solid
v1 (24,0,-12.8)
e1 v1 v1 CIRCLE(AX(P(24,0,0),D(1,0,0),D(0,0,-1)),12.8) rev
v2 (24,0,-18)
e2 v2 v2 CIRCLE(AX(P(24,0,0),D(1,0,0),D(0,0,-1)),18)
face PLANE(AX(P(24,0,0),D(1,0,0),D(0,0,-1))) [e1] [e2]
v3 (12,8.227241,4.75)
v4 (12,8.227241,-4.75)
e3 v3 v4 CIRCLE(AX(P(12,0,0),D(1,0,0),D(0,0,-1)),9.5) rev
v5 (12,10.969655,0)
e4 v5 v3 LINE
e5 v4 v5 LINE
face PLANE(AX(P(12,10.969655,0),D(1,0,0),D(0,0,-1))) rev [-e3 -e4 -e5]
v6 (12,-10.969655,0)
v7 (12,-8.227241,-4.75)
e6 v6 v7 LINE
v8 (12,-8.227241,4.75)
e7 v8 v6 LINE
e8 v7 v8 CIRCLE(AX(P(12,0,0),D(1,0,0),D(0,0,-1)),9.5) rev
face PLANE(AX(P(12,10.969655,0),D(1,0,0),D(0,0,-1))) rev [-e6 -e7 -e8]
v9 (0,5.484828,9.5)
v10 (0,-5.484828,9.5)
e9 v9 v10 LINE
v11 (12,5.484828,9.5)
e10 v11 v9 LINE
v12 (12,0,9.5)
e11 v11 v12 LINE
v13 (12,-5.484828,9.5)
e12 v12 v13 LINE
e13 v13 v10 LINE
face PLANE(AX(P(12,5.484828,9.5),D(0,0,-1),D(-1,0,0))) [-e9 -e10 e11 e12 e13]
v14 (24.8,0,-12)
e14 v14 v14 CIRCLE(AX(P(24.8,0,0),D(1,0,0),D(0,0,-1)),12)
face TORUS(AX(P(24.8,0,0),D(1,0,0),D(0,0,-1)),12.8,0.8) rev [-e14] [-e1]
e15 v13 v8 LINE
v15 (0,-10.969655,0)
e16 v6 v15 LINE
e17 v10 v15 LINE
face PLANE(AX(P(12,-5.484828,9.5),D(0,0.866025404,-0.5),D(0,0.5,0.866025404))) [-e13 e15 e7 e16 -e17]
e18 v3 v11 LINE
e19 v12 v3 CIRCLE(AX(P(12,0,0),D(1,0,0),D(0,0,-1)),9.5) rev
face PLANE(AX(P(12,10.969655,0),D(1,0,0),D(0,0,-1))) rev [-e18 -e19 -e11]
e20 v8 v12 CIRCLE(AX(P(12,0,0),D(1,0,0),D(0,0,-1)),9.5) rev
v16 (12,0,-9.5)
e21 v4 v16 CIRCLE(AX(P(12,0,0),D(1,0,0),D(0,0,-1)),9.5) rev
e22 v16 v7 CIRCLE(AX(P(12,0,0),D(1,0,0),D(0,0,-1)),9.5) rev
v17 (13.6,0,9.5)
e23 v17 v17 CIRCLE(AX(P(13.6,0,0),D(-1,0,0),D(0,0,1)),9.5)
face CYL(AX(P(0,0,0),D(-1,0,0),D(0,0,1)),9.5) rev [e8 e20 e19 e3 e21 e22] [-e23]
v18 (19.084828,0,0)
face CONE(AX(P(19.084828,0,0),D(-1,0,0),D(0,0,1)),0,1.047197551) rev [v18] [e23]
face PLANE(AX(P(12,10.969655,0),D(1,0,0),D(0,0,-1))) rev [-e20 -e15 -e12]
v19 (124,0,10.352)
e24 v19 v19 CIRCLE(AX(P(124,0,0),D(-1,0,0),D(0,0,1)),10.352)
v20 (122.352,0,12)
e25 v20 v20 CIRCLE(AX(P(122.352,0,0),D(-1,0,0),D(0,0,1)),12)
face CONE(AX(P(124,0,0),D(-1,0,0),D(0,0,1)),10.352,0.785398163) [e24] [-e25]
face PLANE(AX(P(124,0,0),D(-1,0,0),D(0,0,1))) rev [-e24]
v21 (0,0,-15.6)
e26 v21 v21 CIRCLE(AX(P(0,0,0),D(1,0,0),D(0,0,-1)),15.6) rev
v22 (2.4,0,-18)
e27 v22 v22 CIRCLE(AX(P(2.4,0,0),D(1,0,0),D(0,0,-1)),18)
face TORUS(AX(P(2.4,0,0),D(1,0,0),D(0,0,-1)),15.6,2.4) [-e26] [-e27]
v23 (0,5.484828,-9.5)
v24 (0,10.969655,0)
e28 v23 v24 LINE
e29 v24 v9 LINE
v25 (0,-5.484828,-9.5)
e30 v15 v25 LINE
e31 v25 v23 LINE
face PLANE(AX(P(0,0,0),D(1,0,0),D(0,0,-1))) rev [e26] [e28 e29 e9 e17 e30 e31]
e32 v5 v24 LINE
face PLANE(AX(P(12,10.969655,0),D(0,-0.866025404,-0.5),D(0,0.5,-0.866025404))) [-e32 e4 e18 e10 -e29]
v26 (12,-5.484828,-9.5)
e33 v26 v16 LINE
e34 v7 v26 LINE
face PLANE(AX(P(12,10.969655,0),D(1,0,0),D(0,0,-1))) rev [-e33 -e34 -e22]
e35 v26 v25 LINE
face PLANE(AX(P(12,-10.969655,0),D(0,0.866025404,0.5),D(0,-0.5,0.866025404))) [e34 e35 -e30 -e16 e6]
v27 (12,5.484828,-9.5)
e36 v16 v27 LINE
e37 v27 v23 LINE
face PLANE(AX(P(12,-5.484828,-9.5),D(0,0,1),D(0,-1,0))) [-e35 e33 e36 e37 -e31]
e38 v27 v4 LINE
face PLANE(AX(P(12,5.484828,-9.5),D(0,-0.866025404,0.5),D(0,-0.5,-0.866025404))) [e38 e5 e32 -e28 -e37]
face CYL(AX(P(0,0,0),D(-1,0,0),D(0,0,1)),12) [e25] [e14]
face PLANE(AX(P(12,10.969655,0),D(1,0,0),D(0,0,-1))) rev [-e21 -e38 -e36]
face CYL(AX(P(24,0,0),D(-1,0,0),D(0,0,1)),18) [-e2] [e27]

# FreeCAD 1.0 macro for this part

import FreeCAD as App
import Part
import Sketcher
from FreeCAD import Vector
Q = App.Units.Quantity


def edges_at(feature, points):
    """Names of the edges that pass closest to the given points."""
    edges = feature.Shape.Edges
    near = lambda p: min(range(len(edges)), key=lambda i: edges[i].distToShape(Part.Vertex(*p))[0])
    return sorted({f"Edge{near(p) + 1}" for p in points})


def add_polygon(sketch, points):
    """Adds a closed chain of lines whose ends are joined by coincident constraints."""
    first, n = sketch.GeometryCount, len(points)
    for a, b in zip(points, points[1:] + points[:1]):
        sketch.addGeometry(Part.LineSegment(App.Vector(*a, 0), App.Vector(*b, 0)), False)
    for i in range(n):
        sketch.addConstraint(Sketcher.Constraint("Coincident", first + i, 2, first + (i + 1) % n, 1))

doc = App.newDocument("Part")
params = doc.addObject("Spreadsheet::Sheet", "Params")
for row, (alias, value) in enumerate([
    ("sketch1_diameter", "36 mm"),
    ("pad1_length", "24 mm"),
    ("sketch2_width", "124 mm"),
    ("sketch2_height", "12 mm"),
    ("revolution_angle", "360 deg"),
    ("pocket1_length", "12 mm"),
    ("sketch4_width", "13.6 mm"),
    ("sketch4_height", "9.5 mm"),
    ("groove_angle", "360 deg"),
    ("fillet_radius", "0.8 mm"),
    ("fillet2_radius", "2.4 mm"),
], start=1):
    params.set(f"A{row}", alias)
    params.set(f"B{row}", "=" + value)
    params.setAlias(f"B{row}", alias)

body = doc.addObject("PartDesign::Body", "Body")

sketch1 = doc.addObject("Sketcher::SketchObject", "Sketch")
body.addObject(sketch1)
sketch1.AttachmentSupport = (doc.YZ_Plane, [""])
sketch1.MapMode = "FlatFace"
sketch1.addGeometry(Part.Circle(Vector(0, 0, 0), Vector(0, 0, 1), 18), False)
sketch1.addConstraint([
    Sketcher.Constraint("Coincident", 0, 3, -1, 1),
    Sketcher.Constraint("Diameter", 0, Q("36 mm")),
])
sketch1.setExpression("Constraints[1]", "Params.sketch1_diameter")
pad1 = doc.addObject("PartDesign::Pad", "Pad")
body.addObject(pad1)
pad1.Profile = sketch1
pad1.setExpression("Length", "Params.pad1_length")

sketch2 = doc.addObject("Sketcher::SketchObject", "Sketch001")
body.addObject(sketch2)
sketch2.AttachmentSupport = (doc.XY_Plane, [""])
sketch2.MapMode = "FlatFace"
add_polygon(sketch2, [(0, 0), (124, 0), (124, 10.352), (122.352, 12), (0, 12)])
sketch2.addConstraint([
    Sketcher.Constraint("Horizontal", 0),
    Sketcher.Constraint("Vertical", 1),
    Sketcher.Constraint("Horizontal", 3),
    Sketcher.Constraint("Vertical", 4),
    Sketcher.Constraint("Coincident", 4, 2, -1, 1),
    Sketcher.Constraint("DistanceX", 0, 1, 0, 2, Q("124 mm")),
    Sketcher.Constraint("DistanceY", 4, 2, 4, 1, Q("12 mm")),
    Sketcher.Constraint("Angle", 2, Q("135 deg")),
    Sketcher.Constraint("DistanceX", 3, 2, 3, 1, Q("122.352 mm")),
])
sketch2.setExpression("Constraints[10]", "Params.sketch2_width")
sketch2.setExpression("Constraints[11]", "Params.sketch2_height")
revolution = doc.addObject("PartDesign::Revolution", "Revolution")
body.addObject(revolution)
revolution.Profile = sketch2
revolution.ReferenceAxis = (sketch2, ["H_Axis"])
revolution.setExpression("Angle", "Params.revolution_angle")

sketch3 = doc.addObject("Sketcher::SketchObject", "Sketch002")
body.addObject(sketch3)
sketch3.AttachmentSupport = (doc.YZ_Plane, [""])
sketch3.MapMode = "FlatFace"
add_polygon(sketch3, [(10.969655, 0), (5.484828, 9.5), (-5.484828, 9.5), (-10.969655, 0), (-5.484828, -9.5), (5.484828, -9.5)])
sketch3.addConstraint([
    Sketcher.Constraint("Horizontal", 1),
    Sketcher.Constraint("Horizontal", 4),
    Sketcher.Constraint("Symmetric", 0, 2, 3, 2, -1, 1),
    Sketcher.Constraint("Symmetric", 2, 2, 5, 2, -1, 1),
    Sketcher.Constraint("PointOnObject", 2, 2, -1),
    Sketcher.Constraint("Parallel", 2, 5),
    Sketcher.Constraint("Vertical", 1, 2, 3, 2),
    Sketcher.Constraint("Angle", 0, Q("120 deg")),
    Sketcher.Constraint("DistanceY", 3, 2, 1, 2, Q("19 mm")),
    Sketcher.Constraint("DistanceX", 1, 2, 1, 1, Q("10.969655 mm")),
])
pocket1 = doc.addObject("PartDesign::Pocket", "Pocket")
body.addObject(pocket1)
pocket1.Profile = sketch3
pocket1.setExpression("Length", "Params.pocket1_length")
pocket1.Reversed = True

sketch4 = doc.addObject("Sketcher::SketchObject", "Sketch003")
body.addObject(sketch4)
sketch4.AttachmentSupport = (doc.XY_Plane, [""])
sketch4.MapMode = "FlatFace"
add_polygon(sketch4, [(13.6, 9.5), (0, 9.5), (0, 0), (19.084828, 0)])
sketch4.addConstraint([
    Sketcher.Constraint("Horizontal", 0),
    Sketcher.Constraint("Vertical", 1),
    Sketcher.Constraint("Horizontal", 2),
    Sketcher.Constraint("Coincident", 1, 2, -1, 1),
    Sketcher.Constraint("Angle", 3, Q("120 deg")),
    Sketcher.Constraint("DistanceX", 0, 2, 0, 1, Q("13.6 mm")),
    Sketcher.Constraint("DistanceY", 1, 2, 1, 1, Q("9.5 mm")),
])
sketch4.setExpression("Constraints[9]", "Params.sketch4_width")
sketch4.setExpression("Constraints[10]", "Params.sketch4_height")
groove = doc.addObject("PartDesign::Groove", "Groove")
body.addObject(groove)
groove.Profile = sketch4
groove.ReferenceAxis = (sketch4, ["H_Axis"])
groove.setExpression("Angle", "Params.groove_angle")
doc.recompute()

fillet = doc.addObject("PartDesign::Fillet", "Fillet")
body.addObject(fillet)
fillet.Base = (groove, edges_at(groove, [(24, -12, 0)]))
fillet.setExpression("Radius", "Params.fillet_radius")
doc.recompute()

fillet2 = doc.addObject("PartDesign::Fillet", "Fillet001")
body.addObject(fillet2)
fillet2.Base = (fillet, edges_at(fillet, [(0, 0, 18)]))
fillet2.setExpression("Radius", "Params.fillet2_radius")

doc.recompute()
